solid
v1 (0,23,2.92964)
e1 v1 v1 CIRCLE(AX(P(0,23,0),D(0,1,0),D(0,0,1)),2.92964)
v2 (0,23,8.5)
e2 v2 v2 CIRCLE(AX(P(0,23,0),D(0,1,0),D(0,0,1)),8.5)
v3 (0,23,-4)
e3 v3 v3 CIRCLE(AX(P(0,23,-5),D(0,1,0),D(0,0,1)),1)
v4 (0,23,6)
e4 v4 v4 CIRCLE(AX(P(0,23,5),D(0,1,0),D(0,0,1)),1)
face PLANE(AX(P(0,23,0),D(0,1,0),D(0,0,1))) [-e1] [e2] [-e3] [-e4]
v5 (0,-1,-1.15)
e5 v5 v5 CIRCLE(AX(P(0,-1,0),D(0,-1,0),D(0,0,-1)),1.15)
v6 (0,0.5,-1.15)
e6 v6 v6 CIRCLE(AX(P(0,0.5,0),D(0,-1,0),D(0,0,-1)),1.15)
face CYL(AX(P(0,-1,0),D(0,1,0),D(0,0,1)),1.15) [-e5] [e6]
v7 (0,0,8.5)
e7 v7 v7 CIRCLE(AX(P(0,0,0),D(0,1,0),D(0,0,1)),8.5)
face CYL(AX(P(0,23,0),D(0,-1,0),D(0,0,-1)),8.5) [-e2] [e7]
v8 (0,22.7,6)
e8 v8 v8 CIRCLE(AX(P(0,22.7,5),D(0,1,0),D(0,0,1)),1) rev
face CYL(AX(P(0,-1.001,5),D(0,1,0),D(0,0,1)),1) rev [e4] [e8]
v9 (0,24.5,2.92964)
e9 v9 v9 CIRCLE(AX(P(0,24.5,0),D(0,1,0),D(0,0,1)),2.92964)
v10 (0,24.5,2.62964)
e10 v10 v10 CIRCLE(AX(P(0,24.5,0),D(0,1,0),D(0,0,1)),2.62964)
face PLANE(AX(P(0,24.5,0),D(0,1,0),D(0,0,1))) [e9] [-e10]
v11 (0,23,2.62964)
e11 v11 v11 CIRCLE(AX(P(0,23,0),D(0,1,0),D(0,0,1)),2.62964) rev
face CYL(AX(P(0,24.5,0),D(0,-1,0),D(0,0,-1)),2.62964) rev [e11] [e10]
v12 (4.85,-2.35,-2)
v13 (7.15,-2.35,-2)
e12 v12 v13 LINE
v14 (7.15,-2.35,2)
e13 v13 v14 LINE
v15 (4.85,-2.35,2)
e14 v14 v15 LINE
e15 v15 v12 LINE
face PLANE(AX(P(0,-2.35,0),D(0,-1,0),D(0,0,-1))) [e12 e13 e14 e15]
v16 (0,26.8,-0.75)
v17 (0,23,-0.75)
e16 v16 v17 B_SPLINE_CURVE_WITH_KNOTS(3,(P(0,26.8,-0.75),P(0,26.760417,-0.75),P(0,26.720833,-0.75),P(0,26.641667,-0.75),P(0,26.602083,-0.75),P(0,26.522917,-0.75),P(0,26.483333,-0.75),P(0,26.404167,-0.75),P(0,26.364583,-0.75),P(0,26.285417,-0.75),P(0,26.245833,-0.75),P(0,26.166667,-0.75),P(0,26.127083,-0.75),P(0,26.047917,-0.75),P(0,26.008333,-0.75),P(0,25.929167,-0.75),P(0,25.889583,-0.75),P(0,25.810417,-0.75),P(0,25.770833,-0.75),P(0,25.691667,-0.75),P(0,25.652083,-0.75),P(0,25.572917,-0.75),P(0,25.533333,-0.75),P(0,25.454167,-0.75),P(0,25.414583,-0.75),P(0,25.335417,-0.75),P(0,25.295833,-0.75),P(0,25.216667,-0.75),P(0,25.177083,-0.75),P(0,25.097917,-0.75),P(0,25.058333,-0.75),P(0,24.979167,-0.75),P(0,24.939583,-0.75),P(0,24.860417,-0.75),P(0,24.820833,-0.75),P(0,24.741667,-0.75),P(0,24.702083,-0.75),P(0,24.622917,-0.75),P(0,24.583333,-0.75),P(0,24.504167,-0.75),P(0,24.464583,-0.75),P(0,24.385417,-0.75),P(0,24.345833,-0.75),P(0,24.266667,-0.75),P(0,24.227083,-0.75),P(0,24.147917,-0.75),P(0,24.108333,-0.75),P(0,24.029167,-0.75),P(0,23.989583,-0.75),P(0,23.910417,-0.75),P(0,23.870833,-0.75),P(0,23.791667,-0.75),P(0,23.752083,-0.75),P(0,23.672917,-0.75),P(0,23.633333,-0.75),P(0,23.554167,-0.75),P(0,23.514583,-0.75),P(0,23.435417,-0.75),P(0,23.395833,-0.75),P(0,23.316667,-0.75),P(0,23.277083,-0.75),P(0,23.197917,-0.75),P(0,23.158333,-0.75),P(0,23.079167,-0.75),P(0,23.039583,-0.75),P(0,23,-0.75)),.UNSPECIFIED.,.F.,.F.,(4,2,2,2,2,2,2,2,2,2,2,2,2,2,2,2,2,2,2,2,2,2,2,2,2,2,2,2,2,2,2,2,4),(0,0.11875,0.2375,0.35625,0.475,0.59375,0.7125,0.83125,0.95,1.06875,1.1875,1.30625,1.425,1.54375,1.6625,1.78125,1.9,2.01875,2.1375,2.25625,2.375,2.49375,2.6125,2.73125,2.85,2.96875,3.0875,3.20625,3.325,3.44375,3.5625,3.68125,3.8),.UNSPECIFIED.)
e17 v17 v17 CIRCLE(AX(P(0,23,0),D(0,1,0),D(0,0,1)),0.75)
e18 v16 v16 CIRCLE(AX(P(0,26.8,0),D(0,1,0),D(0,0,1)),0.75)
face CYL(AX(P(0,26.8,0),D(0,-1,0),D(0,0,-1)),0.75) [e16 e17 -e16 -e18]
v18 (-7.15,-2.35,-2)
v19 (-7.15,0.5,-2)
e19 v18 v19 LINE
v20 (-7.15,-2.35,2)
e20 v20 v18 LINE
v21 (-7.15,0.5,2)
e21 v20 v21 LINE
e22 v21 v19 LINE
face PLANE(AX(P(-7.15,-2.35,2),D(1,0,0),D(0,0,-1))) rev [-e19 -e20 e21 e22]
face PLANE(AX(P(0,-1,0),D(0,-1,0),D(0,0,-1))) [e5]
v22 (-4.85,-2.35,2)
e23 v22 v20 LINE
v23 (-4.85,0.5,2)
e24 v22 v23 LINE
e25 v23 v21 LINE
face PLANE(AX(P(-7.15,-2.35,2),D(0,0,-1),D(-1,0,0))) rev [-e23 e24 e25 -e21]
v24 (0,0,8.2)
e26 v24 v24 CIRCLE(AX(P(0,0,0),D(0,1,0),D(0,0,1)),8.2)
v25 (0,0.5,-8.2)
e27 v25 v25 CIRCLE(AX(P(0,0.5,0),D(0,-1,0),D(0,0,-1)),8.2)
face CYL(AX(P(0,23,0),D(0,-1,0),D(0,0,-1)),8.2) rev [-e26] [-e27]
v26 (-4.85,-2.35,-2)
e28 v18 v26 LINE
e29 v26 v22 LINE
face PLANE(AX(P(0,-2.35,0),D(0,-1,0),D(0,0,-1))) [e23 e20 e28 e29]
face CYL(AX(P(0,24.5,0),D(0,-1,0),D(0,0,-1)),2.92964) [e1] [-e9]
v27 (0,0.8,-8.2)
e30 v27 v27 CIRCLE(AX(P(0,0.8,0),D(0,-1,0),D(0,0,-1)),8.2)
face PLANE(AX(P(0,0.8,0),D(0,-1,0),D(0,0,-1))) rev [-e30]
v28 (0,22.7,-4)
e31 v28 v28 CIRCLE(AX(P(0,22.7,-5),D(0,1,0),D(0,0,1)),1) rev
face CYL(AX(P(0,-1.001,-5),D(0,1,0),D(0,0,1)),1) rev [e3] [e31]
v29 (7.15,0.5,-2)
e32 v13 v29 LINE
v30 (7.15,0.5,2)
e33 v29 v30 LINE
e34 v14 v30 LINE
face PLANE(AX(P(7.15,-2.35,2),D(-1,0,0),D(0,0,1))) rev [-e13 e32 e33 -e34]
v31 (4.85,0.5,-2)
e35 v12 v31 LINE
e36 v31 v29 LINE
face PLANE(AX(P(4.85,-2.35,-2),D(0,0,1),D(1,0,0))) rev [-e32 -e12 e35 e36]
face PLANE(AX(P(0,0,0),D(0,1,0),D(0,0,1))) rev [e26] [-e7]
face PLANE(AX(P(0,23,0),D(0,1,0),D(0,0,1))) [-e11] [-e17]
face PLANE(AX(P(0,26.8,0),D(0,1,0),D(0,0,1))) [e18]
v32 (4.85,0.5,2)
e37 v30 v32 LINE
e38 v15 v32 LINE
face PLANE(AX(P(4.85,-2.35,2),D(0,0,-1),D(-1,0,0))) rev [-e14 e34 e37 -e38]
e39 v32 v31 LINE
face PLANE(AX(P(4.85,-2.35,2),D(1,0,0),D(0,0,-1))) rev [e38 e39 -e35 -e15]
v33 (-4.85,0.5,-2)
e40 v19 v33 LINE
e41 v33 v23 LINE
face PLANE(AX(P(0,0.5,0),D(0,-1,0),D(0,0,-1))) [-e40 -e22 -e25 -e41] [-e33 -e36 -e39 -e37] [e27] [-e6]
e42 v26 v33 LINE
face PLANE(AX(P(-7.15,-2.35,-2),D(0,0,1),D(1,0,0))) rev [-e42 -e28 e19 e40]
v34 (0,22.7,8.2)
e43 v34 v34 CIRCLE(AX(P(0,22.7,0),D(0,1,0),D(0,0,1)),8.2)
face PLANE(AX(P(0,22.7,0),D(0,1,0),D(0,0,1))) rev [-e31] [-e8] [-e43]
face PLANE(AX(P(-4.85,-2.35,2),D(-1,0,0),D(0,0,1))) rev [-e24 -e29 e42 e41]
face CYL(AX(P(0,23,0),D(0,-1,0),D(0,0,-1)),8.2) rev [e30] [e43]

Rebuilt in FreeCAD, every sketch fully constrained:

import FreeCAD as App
import Part
import Sketcher

V = App.Vector
Q = App.Units.Quantity


def faces_at(feature, points):
    """Names of the faces that lie closest to the given points."""
    faces = feature.Shape.Faces
    near = lambda p: min(range(len(faces)), key=lambda i: faces[i].distToShape(Part.Vertex(*p))[0])
    return sorted({f"Face{near(p) + 1}" for p in points})


def add_polygon(sketch, points):
    """Adds a closed chain of lines whose ends are joined by coincident constraints."""
    first, n = sketch.GeometryCount, len(points)
    for a, b in zip(points, points[1:] + points[:1]):
        sketch.addGeometry(Part.LineSegment(App.Vector(*a, 0), App.Vector(*b, 0)), False)
    for i in range(n):
        sketch.addConstraint(Sketcher.Constraint("Coincident", first + i, 2, first + (i + 1) % n, 1))

doc = App.newDocument("Part")
body = doc.addObject("PartDesign::Body", "Body")

# Sketch on XZ plane
sketch1 = body.newObject("Sketcher::SketchObject", "Sketch")
sketch1.AttachmentSupport = (doc.getObject("XZ_Plane"), [""])
sketch1.MapMode = "FlatFace"
sketch1.addGeometry(Part.Circle(V(0, 0, 0), V(0, 0, 1), 8.5), False)
sketch1.addConstraint([
    Sketcher.Constraint("Coincident", 0, 3, -1, 1),
    Sketcher.Constraint("Diameter", 0, Q("17 mm")),
])
pad1 = body.newObject("PartDesign::Pad", "Pad")
pad1.Profile = sketch1
pad1.Length = 23
pad1.Reversed = True
doc.recompute()

thickness = body.newObject("PartDesign::Thickness", "Thickness")
thickness.Base = (pad1, faces_at(pad1, [(0, 0, 0)]))
thickness.Value = 0.3
thickness.Reversed = True
thickness.Join = "Intersection"

# Sketch on XZ plane
sketch2 = body.newObject("Sketcher::SketchObject", "Sketch001")
sketch2.AttachmentSupport = (doc.getObject("XZ_Plane"), [""])
sketch2.MapMode = "FlatFace"
sketch2.AttachmentOffset = App.Placement(V(0, 0, -0.5), App.Rotation())
sketch2.addGeometry(Part.Circle(V(0, 0, 0), V(0, 0, 1), 8.2), False)
sketch2.addConstraint([
    Sketcher.Constraint("Coincident", 0, 3, -1, 1),
    Sketcher.Constraint("Diameter", 0, Q("16.4 mm")),
])
pad2 = body.newObject("PartDesign::Pad", "Pad001")
pad2.Profile = sketch2
pad2.Length = 0.3
pad2.Reversed = True

# Sketch on XZ plane
sketch3 = body.newObject("Sketcher::SketchObject", "Sketch002")
sketch3.AttachmentSupport = (doc.getObject("XZ_Plane"), [""])
sketch3.MapMode = "FlatFace"
sketch3.AttachmentOffset = App.Placement(V(0, 0, -0.5), App.Rotation())
sketch3.addGeometry(Part.Circle(V(0, 0, 0), V(0, 0, 1), 1.15), False)
sketch3.addConstraint([
    Sketcher.Constraint("Coincident", 0, 3, -1, 1),
    Sketcher.Constraint("Diameter", 0, Q("2.3 mm")),
])
pad3 = body.newObject("PartDesign::Pad", "Pad002")
pad3.Profile = sketch3
pad3.Length = 1.5

# Sketch on XZ plane
sketch4 = body.newObject("Sketcher::SketchObject", "Sketch003")
sketch4.AttachmentSupport = (doc.getObject("XZ_Plane"), [""])
sketch4.MapMode = "FlatFace"
sketch4.AttachmentOffset = App.Placement(V(0, 0, -23), App.Rotation())
sketch4.addGeometry([
    Part.Circle(V(0, 0, 0), V(0, 0, 1), 2.92964),
    Part.Circle(V(0, 0, 0), V(0, 0, 1), 2.62964),
], False)
sketch4.addConstraint([
    Sketcher.Constraint("Coincident", 0, 3, -1, 1),
    Sketcher.Constraint("Coincident", 1, 3, -1, 1),
    Sketcher.Constraint("Diameter", 0, Q("5.859279 mm")),
    Sketcher.Constraint("Diameter", 1, Q("5.259279 mm")),
])
pad4 = body.newObject("PartDesign::Pad", "Pad003")
pad4.Profile = sketch4
pad4.Length = 1.5
pad4.Reversed = True

# Sketch on XZ plane
sketch5 = body.newObject("Sketcher::SketchObject", "Sketch004")
sketch5.AttachmentSupport = (doc.getObject("XZ_Plane"), [""])
sketch5.MapMode = "FlatFace"
sketch5.AttachmentOffset = App.Placement(V(0, 0, -23), App.Rotation())
sketch5.addGeometry(Part.Circle(V(0, 0, 0), V(0, 0, 1), 0.75), False)
sketch5.addConstraint([
    Sketcher.Constraint("Coincident", 0, 3, -1, 1),
    Sketcher.Constraint("Diameter", 0, Q("1.5 mm")),
])
pad5 = body.newObject("PartDesign::Pad", "Pad004")
pad5.Profile = sketch5
pad5.Length = 3.8
pad5.Reversed = True

# Sketch on XZ plane
sketch6 = body.newObject("Sketcher::SketchObject", "Sketch005")
sketch6.AttachmentSupport = (doc.getObject("XZ_Plane"), [""])
sketch6.MapMode = "FlatFace"
sketch6.AttachmentOffset = App.Placement(V(0, 0, -23), App.Rotation())
sketch6.addGeometry(Part.Circle(V(0, -5, 0), V(0, 0, 1), 1), False)
sketch6.addConstraint([
    Sketcher.Constraint("PointOnObject", 0, 3, -2),
    Sketcher.Constraint("Diameter", 0, Q("2 mm")),
    Sketcher.Constraint("DistanceY", 0, 3, -1, 1, Q("5 mm")),
])
pocket1 = body.newObject("PartDesign::Pocket", "Pocket")
pocket1.Profile = sketch6
pocket1.Type = "UpToFirst"
pocket1.Reversed = True

# Sketch on XZ plane
sketch7 = body.newObject("Sketcher::SketchObject", "Sketch006")
sketch7.AttachmentSupport = (doc.getObject("XZ_Plane"), [""])
sketch7.MapMode = "FlatFace"
sketch7.AttachmentOffset = App.Placement(V(0, 0, -23), App.Rotation())
sketch7.addGeometry(Part.Circle(V(0, 5, 0), V(0, 0, 1), 1), False)
sketch7.addConstraint([
    Sketcher.Constraint("PointOnObject", 0, 3, -2),
    Sketcher.Constraint("Diameter", 0, Q("2 mm")),
    Sketcher.Constraint("DistanceY", -1, 1, 0, 3, Q("5 mm")),
])
pocket2 = body.newObject("PartDesign::Pocket", "Pocket001")
pocket2.Profile = sketch7
pocket2.Type = "UpToFirst"
pocket2.Reversed = True

# Sketch on XZ plane
sketch8 = body.newObject("Sketcher::SketchObject", "Sketch007")
sketch8.AttachmentSupport = (doc.getObject("XZ_Plane"), [""])
sketch8.MapMode = "FlatFace"
sketch8.AttachmentOffset = App.Placement(V(0, 0, -0.5), App.Rotation())
add_polygon(sketch8, [(-7.15, 2), (-7.15, -2), (-4.85, -2), (-4.85, 2)])  # lines 0-3
add_polygon(sketch8, [(4.85, 2), (4.85, -2), (7.15, -2), (7.15, 2)])  # lines 4-7
sketch8.addConstraint([
    Sketcher.Constraint("Vertical", 0),
    Sketcher.Constraint("Horizontal", 1),
    Sketcher.Constraint("Vertical", 2),
    Sketcher.Constraint("Horizontal", 3),
    Sketcher.Constraint("Vertical", 4),
    Sketcher.Constraint("Horizontal", 5),
    Sketcher.Constraint("Vertical", 6),
    Sketcher.Constraint("Horizontal", 7),
    Sketcher.Constraint("Symmetric", 2, 2, 4, 2, -1, 1),
    Sketcher.Constraint("Symmetric", 0, 2, 6, 2, -1, 1),
    Sketcher.Constraint("Horizontal", 1, 2, 4, 2),
    Sketcher.Constraint("DistanceY", 0, 2, 0, 1, Q("4 mm")),
    Sketcher.Constraint("DistanceX", 1, 1, 1, 2, Q("2.3 mm")),
    Sketcher.Constraint("DistanceX", 0, 2, 4, 2, Q("12 mm")),
])
pad6 = body.newObject("PartDesign::Pad", "Pad005")
pad6.Profile = sketch8
pad6.Length = 2.85

doc.recompute()
